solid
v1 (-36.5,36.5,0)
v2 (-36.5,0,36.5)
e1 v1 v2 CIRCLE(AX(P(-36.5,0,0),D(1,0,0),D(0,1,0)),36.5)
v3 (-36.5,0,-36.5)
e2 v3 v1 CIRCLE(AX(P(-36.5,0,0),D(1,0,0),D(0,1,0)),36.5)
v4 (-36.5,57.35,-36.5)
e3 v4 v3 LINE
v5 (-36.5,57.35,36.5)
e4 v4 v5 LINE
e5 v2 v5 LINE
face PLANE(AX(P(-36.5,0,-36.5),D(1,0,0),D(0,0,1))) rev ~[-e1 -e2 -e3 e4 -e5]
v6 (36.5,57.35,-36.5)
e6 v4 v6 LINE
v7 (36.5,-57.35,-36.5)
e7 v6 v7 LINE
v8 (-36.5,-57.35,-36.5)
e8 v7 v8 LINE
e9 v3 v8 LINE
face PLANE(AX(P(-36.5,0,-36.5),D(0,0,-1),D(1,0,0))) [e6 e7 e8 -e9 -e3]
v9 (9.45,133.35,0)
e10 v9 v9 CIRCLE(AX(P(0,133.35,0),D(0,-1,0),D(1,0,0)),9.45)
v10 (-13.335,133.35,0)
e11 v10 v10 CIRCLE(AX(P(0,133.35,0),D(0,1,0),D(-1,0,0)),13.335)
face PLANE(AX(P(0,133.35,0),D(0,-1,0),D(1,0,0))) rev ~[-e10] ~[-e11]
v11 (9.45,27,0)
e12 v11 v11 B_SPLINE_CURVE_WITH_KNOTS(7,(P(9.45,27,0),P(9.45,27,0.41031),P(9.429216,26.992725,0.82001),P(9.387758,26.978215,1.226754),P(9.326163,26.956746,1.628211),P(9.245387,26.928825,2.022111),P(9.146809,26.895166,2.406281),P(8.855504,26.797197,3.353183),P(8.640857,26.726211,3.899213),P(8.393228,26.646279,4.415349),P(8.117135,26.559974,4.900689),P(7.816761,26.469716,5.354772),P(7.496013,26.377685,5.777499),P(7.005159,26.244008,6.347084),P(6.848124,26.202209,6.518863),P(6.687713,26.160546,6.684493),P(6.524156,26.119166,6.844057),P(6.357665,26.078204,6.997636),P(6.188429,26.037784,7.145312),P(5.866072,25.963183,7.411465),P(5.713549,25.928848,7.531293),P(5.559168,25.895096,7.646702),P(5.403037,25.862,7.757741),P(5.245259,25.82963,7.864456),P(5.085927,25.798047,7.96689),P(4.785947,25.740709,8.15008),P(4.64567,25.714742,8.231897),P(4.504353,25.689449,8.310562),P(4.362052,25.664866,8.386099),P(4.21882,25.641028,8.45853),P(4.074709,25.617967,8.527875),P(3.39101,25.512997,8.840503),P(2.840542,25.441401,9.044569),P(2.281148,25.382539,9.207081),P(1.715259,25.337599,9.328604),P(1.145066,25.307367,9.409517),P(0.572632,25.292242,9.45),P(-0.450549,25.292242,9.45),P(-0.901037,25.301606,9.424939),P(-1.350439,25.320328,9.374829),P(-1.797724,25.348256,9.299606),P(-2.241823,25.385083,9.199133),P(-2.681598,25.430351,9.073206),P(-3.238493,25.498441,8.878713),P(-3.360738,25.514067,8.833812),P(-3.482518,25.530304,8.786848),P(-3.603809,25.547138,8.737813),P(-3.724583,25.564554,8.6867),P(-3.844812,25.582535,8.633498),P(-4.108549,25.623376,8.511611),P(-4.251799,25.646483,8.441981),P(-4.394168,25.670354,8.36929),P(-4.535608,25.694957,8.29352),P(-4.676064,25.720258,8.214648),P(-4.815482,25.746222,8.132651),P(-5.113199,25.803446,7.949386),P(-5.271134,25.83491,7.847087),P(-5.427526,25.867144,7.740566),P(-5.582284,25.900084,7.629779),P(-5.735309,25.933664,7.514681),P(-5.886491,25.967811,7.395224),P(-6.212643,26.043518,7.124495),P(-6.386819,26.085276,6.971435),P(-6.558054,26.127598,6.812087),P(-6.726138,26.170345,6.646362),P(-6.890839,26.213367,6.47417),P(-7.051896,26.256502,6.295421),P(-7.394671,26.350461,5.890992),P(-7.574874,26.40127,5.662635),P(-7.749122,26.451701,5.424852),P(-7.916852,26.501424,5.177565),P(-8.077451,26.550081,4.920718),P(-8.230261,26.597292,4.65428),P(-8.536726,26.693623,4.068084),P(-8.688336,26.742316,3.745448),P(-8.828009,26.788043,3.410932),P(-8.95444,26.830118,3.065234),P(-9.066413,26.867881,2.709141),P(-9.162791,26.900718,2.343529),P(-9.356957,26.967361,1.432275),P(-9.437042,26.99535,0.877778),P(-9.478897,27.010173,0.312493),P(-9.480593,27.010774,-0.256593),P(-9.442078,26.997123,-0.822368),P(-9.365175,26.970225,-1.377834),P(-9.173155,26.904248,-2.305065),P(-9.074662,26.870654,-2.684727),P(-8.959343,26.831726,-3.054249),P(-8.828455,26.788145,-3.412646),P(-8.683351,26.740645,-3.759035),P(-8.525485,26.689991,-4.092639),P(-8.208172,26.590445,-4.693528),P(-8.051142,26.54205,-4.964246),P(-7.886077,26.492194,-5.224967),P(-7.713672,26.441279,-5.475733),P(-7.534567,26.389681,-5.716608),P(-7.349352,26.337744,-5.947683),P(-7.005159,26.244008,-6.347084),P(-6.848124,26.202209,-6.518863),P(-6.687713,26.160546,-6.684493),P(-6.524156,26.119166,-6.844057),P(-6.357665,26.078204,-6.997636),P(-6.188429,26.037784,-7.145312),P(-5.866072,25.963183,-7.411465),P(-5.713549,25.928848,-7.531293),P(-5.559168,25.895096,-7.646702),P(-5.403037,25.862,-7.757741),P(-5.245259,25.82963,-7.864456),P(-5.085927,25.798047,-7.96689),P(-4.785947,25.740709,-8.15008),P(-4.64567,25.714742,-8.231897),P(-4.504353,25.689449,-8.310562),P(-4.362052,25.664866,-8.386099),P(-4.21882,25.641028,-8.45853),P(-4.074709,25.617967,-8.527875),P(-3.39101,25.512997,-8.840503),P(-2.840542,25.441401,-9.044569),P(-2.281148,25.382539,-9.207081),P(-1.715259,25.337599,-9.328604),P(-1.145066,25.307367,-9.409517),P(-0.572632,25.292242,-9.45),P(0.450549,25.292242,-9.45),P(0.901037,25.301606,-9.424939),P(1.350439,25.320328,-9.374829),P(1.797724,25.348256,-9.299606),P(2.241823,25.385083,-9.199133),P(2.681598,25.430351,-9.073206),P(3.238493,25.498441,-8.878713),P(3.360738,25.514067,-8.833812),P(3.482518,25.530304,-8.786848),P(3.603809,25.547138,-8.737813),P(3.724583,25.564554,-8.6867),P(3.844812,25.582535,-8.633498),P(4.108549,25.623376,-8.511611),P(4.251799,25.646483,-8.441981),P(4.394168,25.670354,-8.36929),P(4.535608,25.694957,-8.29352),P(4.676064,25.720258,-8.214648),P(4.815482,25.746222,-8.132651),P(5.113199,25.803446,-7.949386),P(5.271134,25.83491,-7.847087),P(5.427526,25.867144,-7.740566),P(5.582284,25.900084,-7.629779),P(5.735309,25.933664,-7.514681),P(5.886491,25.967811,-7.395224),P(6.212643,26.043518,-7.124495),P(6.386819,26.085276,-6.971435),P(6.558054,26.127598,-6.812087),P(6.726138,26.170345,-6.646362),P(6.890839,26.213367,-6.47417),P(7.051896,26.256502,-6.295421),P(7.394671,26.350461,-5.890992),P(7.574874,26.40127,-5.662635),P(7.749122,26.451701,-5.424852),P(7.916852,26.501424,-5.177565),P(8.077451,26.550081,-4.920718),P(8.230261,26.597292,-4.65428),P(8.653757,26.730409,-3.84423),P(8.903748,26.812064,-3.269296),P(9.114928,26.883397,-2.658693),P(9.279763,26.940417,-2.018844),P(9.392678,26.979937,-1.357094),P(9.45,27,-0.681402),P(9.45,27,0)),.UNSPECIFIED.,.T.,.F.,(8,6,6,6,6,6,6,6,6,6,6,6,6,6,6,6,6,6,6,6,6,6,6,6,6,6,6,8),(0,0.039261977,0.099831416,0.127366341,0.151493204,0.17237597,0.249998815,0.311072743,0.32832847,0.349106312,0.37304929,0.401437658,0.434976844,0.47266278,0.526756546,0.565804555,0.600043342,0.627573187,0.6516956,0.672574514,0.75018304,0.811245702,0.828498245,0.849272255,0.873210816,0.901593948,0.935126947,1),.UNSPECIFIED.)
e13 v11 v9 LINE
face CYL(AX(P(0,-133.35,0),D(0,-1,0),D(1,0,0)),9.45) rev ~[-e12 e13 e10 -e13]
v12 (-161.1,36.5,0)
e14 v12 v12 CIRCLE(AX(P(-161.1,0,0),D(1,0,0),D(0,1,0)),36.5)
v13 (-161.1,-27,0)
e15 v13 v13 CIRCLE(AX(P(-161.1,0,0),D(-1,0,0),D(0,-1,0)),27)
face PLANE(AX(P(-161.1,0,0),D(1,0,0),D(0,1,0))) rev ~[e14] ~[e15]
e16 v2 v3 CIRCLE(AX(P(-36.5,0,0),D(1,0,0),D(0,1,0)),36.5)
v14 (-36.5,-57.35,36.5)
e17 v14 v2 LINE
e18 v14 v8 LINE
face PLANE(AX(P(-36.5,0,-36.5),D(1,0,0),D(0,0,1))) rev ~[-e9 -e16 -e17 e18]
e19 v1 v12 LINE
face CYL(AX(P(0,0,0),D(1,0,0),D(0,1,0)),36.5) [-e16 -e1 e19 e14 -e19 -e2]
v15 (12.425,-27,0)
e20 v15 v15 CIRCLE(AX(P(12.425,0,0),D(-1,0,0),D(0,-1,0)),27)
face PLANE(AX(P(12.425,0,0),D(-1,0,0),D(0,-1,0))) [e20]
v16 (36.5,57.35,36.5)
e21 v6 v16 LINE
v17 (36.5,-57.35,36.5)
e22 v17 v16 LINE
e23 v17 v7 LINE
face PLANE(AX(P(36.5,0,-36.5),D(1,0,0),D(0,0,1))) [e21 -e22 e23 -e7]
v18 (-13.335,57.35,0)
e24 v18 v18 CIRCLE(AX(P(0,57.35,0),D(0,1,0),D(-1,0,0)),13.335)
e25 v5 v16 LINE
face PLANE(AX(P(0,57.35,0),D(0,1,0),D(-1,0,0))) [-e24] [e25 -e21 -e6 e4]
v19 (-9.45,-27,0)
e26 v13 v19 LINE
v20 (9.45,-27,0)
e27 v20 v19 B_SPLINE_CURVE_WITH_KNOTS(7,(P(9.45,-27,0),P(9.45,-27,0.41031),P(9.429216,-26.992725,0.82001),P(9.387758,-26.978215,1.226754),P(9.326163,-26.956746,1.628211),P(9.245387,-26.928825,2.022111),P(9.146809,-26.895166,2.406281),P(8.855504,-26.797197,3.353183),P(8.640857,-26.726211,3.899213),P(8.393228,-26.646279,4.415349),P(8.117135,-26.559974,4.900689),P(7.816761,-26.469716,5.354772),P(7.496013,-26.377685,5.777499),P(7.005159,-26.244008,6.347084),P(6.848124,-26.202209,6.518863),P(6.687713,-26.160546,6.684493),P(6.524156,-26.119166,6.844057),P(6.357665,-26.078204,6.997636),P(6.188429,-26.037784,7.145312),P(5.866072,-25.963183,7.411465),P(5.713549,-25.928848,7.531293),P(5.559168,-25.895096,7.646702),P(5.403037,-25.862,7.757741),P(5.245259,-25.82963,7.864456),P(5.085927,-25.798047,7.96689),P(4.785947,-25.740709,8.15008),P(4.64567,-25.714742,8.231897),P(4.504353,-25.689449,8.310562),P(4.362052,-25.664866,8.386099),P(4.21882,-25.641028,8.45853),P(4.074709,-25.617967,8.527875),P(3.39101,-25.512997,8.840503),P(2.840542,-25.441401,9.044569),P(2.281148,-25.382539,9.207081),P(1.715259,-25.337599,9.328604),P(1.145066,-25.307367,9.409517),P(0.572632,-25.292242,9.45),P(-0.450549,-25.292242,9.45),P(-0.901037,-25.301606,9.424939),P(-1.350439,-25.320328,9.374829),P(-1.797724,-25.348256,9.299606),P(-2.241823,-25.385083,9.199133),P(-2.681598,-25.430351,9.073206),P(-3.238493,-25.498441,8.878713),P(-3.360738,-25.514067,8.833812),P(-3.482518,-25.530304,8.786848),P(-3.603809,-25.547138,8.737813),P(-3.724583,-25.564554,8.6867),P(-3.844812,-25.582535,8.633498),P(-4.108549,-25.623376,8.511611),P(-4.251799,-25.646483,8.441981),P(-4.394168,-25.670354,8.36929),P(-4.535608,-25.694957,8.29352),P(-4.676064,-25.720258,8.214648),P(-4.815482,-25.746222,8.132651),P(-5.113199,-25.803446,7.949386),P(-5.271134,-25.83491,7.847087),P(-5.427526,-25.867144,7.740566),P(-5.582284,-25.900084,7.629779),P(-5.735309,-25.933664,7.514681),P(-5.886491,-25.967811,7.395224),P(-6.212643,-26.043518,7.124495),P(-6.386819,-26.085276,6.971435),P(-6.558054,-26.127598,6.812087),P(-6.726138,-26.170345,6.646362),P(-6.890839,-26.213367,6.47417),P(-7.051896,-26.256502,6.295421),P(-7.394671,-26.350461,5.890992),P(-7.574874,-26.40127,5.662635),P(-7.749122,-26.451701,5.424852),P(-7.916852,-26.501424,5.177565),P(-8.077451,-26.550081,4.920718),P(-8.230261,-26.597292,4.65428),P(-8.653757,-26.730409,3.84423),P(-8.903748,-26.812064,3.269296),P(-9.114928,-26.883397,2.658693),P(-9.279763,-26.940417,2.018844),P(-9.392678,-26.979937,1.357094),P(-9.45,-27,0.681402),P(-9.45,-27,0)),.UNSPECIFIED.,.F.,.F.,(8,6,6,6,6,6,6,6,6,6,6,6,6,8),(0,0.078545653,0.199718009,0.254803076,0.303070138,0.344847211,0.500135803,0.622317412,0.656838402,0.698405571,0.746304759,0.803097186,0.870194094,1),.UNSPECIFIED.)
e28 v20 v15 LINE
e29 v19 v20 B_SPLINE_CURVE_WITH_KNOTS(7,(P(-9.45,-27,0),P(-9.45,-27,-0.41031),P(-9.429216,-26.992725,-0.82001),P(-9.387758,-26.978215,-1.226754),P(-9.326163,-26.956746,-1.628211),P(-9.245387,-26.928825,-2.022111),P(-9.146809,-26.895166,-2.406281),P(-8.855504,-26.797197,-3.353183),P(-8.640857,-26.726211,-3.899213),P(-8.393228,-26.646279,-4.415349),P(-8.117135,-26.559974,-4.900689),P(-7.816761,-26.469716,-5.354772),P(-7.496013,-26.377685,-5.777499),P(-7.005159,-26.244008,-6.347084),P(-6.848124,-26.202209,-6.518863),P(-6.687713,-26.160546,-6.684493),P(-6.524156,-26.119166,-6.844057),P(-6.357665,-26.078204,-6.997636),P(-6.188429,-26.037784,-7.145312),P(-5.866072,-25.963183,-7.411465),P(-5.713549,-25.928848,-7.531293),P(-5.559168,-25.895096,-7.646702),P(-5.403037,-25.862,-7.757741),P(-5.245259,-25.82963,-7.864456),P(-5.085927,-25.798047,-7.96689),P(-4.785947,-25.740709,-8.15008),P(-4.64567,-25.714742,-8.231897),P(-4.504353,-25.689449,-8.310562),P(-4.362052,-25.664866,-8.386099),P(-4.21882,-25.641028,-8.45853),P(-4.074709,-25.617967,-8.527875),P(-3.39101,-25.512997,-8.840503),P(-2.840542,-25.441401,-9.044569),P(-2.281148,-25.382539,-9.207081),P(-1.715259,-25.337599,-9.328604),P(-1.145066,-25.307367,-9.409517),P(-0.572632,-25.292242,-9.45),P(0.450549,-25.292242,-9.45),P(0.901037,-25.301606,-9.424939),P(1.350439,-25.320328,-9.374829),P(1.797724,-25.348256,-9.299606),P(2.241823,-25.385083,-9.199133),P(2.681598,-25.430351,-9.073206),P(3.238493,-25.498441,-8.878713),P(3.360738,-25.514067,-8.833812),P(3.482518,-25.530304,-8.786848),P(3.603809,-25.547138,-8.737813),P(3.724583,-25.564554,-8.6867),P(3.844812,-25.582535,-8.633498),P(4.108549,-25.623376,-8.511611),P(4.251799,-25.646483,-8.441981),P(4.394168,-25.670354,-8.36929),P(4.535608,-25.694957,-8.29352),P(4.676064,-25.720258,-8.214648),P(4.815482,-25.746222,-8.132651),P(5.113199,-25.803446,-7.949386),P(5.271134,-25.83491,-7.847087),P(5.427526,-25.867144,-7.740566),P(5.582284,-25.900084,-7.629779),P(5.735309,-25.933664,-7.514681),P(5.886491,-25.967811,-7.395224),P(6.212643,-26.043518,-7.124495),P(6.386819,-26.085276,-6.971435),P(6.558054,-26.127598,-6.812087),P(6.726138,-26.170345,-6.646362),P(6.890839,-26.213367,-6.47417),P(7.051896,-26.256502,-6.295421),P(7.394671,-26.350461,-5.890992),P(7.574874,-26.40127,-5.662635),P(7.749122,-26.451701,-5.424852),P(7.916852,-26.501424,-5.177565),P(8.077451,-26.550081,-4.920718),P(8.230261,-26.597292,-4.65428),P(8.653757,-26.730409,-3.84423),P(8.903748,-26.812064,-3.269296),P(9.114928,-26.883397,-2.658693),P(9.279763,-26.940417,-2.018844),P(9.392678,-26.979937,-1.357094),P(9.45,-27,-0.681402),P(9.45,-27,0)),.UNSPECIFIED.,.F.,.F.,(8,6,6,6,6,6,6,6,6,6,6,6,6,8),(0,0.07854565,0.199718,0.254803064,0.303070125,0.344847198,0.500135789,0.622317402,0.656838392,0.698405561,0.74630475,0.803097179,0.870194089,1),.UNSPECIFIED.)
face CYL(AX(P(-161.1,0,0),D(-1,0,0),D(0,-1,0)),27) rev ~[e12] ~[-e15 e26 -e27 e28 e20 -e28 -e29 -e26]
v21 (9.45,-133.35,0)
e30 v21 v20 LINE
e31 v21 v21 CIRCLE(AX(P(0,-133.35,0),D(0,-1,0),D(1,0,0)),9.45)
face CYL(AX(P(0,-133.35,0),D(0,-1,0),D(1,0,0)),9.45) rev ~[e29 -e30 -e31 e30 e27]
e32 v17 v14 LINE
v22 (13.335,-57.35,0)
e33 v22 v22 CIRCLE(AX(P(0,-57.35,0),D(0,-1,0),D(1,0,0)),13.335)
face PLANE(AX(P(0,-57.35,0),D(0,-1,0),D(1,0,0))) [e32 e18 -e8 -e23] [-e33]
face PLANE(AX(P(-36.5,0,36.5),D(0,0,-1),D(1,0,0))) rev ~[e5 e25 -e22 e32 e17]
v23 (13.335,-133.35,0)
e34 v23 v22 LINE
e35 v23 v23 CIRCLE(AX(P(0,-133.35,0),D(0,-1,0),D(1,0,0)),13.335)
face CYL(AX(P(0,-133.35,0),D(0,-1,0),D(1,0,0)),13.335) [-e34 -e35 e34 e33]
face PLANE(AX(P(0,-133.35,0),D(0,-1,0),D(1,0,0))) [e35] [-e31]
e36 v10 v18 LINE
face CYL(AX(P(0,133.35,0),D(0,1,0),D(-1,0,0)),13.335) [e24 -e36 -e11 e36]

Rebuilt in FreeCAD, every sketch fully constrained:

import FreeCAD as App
import Part
import Sketcher
from FreeCAD import Vector


def add_polygon(sketch, points):
    """Adds a closed chain of lines whose ends are joined by coincident constraints."""
    first, n = sketch.GeometryCount, len(points)
    for a, b in zip(points, points[1:] + points[:1]):
        sketch.addGeometry(Part.LineSegment(App.Vector(*a, 0), App.Vector(*b, 0)), False)
    for i in range(n):
        sketch.addConstraint(Sketcher.Constraint("Coincident", first + i, 2, first + (i + 1) % n, 1))

doc = App.newDocument("Part")
params = doc.addObject("Spreadsheet::Sheet", "Params")
for row, (alias, value) in enumerate([
    ("sketch1_width", "73 mm"),
    ("pad1_length", "266.7 mm"),
    ("sketch2_diameter", "73 mm"),
    ("pad2_length", "161.1 mm"),
    ("sketch3_diameter", "54 mm"),
    ("pocket1_length", "173.525 mm"),
    ("sketch4_diameter", "18.9 mm"),
    ("pocket2_length", "336 mm"),
    ("sketch5_diameter", "26.67 mm"),
    ("pocket3_length", "76 mm"),
    ("sketch6_diameter", "26.67 mm"),
    ("pocket4_length", "76 mm"),
], start=1):
    params.set(f"A{row}", alias)
    params.set(f"B{row}", "=" + value)
    params.setAlias(f"B{row}", alias)

body = doc.addObject("PartDesign::Body", "Body")

# Sketch on XZ plane
sketch1 = body.newObject("Sketcher::SketchObject", "Sketch")
sketch1.AttachmentSupport = (doc.getObject("XZ_Plane"), [""])
sketch1.MapMode = "FlatFace"
add_polygon(sketch1, [(-36.5, 36.5), (-36.5, -36.5), (36.5, -36.5), (36.5, 36.5)])  # lines 0-3
sketch1.addConstraint([
    Sketcher.Constraint("Vertical", 0),
    Sketcher.Constraint("Horizontal", 1),
    Sketcher.Constraint("Vertical", 2),
    Sketcher.Constraint("Horizontal", 3),
    Sketcher.Constraint("Symmetric", 0, 2, 2, 2, -1, 1),
    Sketcher.Constraint("Equal", 3, 0),
    Sketcher.Constraint("DistanceX", 1, 1, 1, 2, 73.0),
])
sketch1.setExpression("Constraints[10]", "Params.sketch1_width")
pad1 = body.newObject("PartDesign::Pad", "Pad")
pad1.Profile = sketch1
pad1.setExpression("Length", "Params.pad1_length")
pad1.Midplane = True

# Sketch on YZ plane
sketch2 = body.newObject("Sketcher::SketchObject", "Sketch001")
sketch2.AttachmentSupport = (doc.getObject("YZ_Plane"), [""])
sketch2.MapMode = "FlatFace"
sketch2.addGeometry(Part.Circle(Vector(0, 0, 0), Vector(0, 0, 1), 36.5), False)
sketch2.addConstraint([
    Sketcher.Constraint("Coincident", 0, 3, -1, 1),
    Sketcher.Constraint("Diameter", 0, 73.0),
])
sketch2.setExpression("Constraints[1]", "Params.sketch2_diameter")
pad2 = body.newObject("PartDesign::Pad", "Pad001")
pad2.Profile = sketch2
pad2.setExpression("Length", "Params.pad2_length")
pad2.Reversed = True

# Sketch on YZ plane
sketch3 = body.newObject("Sketcher::SketchObject", "Sketch002")
sketch3.AttachmentSupport = (doc.getObject("YZ_Plane"), [""])
sketch3.MapMode = "FlatFace"
sketch3.AttachmentOffset = App.Placement(Vector(0, 0, -161.1), App.Rotation())
sketch3.addGeometry(Part.Circle(Vector(0, 0, 0), Vector(0, 0, 1), 27), False)
sketch3.addConstraint([
    Sketcher.Constraint("Coincident", 0, 3, -1, 1),
    Sketcher.Constraint("Diameter", 0, 54.0),
])
sketch3.setExpression("Constraints[1]", "Params.sketch3_diameter")
pocket1 = body.newObject("PartDesign::Pocket", "Pocket")
pocket1.Profile = sketch3
pocket1.setExpression("Length", "Params.pocket1_length")
pocket1.Reversed = True

# Sketch on XZ plane
sketch4 = body.newObject("Sketcher::SketchObject", "Sketch003")
sketch4.AttachmentSupport = (doc.getObject("XZ_Plane"), [""])
sketch4.MapMode = "FlatFace"
sketch4.AttachmentOffset = App.Placement(Vector(0, 0, 133.35), App.Rotation())
sketch4.addGeometry(Part.Circle(Vector(0, 0, 0), Vector(0, 0, 1), 9.45), False)
sketch4.addConstraint([
    Sketcher.Constraint("Coincident", 0, 3, -1, 1),
    Sketcher.Constraint("Diameter", 0, 18.9),
])
sketch4.setExpression("Constraints[1]", "Params.sketch4_diameter")
pocket2 = body.newObject("PartDesign::Pocket", "Pocket001")
pocket2.Profile = sketch4
pocket2.setExpression("Length", "Params.pocket2_length")

# Sketch on XZ plane
sketch5 = body.newObject("Sketcher::SketchObject", "Sketch004")
sketch5.AttachmentSupport = (doc.getObject("XZ_Plane"), [""])
sketch5.MapMode = "FlatFace"
sketch5.AttachmentOffset = App.Placement(Vector(0, 0, -133.35), App.Rotation())
sketch5.addGeometry([
    Part.Circle(Vector(0, 0, 0), Vector(0, 0, 1), 57.112961),
    Part.Circle(Vector(0, 0, 0), Vector(0, 0, 1), 13.335),
], False)
sketch5.addConstraint([
    Sketcher.Constraint("Coincident", 0, 3, -1, 1),
    Sketcher.Constraint("Coincident", 1, 3, -1, 1),
    Sketcher.Constraint("Diameter", 1, 26.67),
    Sketcher.Constraint("Diameter", 0, 114.225922),
])
sketch5.setExpression("Constraints[2]", "Params.sketch5_diameter")
pocket3 = body.newObject("PartDesign::Pocket", "Pocket002")
pocket3.Profile = sketch5
pocket3.setExpression("Length", "Params.pocket3_length")
pocket3.Reversed = True

# Sketch on XZ plane
sketch6 = body.newObject("Sketcher::SketchObject", "Sketch005")
sketch6.AttachmentSupport = (doc.getObject("XZ_Plane"), [""])
sketch6.MapMode = "FlatFace"
sketch6.AttachmentOffset = App.Placement(Vector(0, 0, 133.35), App.Rotation())
sketch6.addGeometry([
    Part.Circle(Vector(0, 0, 0), Vector(0, 0, 1), 82.497851),
    Part.Circle(Vector(0, 0, 0), Vector(0, 0, 1), 13.335),
], False)
sketch6.addConstraint([
    Sketcher.Constraint("Coincident", 0, 3, -1, 1),
    Sketcher.Constraint("Coincident", 1, 3, -1, 1),
    Sketcher.Constraint("Diameter", 1, 26.67),
    Sketcher.Constraint("Diameter", 0, 164.995702),
])
sketch6.setExpression("Constraints[2]", "Params.sketch6_diameter")
pocket4 = body.newObject("PartDesign::Pocket", "Pocket003")
pocket4.Profile = sketch6
pocket4.setExpression("Length", "Params.pocket4_length")

doc.recompute()
